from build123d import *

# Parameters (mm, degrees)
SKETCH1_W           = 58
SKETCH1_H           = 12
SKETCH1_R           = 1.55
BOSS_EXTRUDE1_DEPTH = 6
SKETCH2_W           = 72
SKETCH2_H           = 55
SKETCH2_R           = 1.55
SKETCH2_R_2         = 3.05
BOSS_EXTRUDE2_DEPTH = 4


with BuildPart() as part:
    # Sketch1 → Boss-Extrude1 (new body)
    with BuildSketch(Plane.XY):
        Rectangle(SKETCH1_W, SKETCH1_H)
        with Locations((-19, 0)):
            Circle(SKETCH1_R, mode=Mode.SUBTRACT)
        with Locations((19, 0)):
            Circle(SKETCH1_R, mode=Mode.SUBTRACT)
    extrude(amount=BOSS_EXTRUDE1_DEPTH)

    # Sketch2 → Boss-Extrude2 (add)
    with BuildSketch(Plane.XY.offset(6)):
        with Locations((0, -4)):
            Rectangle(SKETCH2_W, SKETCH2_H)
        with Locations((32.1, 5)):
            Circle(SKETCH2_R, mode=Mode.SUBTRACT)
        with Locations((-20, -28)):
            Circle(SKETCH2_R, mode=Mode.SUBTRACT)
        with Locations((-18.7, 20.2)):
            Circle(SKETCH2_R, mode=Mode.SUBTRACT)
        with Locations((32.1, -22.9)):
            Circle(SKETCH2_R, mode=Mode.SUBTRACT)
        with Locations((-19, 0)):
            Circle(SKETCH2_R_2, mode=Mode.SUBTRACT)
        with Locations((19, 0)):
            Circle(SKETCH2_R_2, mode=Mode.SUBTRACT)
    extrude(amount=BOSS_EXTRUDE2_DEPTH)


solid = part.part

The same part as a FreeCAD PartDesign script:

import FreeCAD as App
import Part
import Sketcher

V = App.Vector
Q = App.Units.Quantity

doc = App.newDocument("Part")
params = doc.addObject("Spreadsheet::Sheet", "Params")
for row, (alias, value) in enumerate([
    ("sketch1_diameter", "3.1 mm"),
    ("sketch1_width", "58 mm"),
    ("sketch1_height", "12 mm"),
    ("pad1_length", "6 mm"),
    ("sketch2_diameter", "3.1 mm"),
    ("sketch2_diameter2", "6.1 mm"),
    ("sketch2_width", "72 mm"),
    ("sketch2_height", "55 mm"),
    ("pad2_length", "4 mm"),
], start=1):
    params.set(f"A{row}", alias)
    params.set(f"B{row}", "=" + value)
    params.setAlias(f"B{row}", alias)

body = doc.addObject("PartDesign::Body", "Body")

sketch1 = body.newObject("Sketcher::SketchObject", "Sketch")
sketch1.AttachmentSupport = (doc.getObject("XY_Plane"), [""])
sketch1.MapMode = "FlatFace"
sketch1.addGeometry(Part.LineSegment(V(-29, 6, 0), V(-29, -6, 0)), False)
sketch1.addGeometry(Part.LineSegment(V(-29, -6, 0), V(29, -6, 0)), False)
sketch1.addGeometry(Part.LineSegment(V(29, -6, 0), V(29, 6, 0)), False)
sketch1.addGeometry(Part.LineSegment(V(29, 6, 0), V(-29, 6, 0)), False)
sketch1.addGeometry(Part.Circle(V(-19, 0, 0), V(0, 0, 1), 1.55), False)
sketch1.addGeometry(Part.Circle(V(19, 0, 0), V(0, 0, 1), 1.55), False)
sketch1.addConstraint(Sketcher.Constraint("Coincident", 0, 2, 1, 1))
sketch1.addConstraint(Sketcher.Constraint("Coincident", 1, 2, 2, 1))
sketch1.addConstraint(Sketcher.Constraint("Coincident", 2, 2, 3, 1))
sketch1.addConstraint(Sketcher.Constraint("Coincident", 3, 2, 0, 1))
sketch1.addConstraint(Sketcher.Constraint("Vertical", 0))
sketch1.addConstraint(Sketcher.Constraint("Horizontal", 1))
sketch1.addConstraint(Sketcher.Constraint("Vertical", 2))
sketch1.addConstraint(Sketcher.Constraint("Horizontal", 3))
sketch1.addConstraint(Sketcher.Constraint("Equal", 4, 5))
sketch1.addConstraint(Sketcher.Constraint("Symmetric", 4, 3, 5, 3, -1, 1))
sketch1.addConstraint(Sketcher.Constraint("Symmetric", 0, 2, 2, 2, -1, 1))
sketch1.addConstraint(Sketcher.Constraint("PointOnObject", 4, 3, -1))
sketch1.addConstraint(Sketcher.Constraint("Diameter", 4, Q("3.1 mm")))
sketch1.addConstraint(Sketcher.Constraint("DistanceX", 1, 1, 1, 2, Q("58 mm")))
sketch1.addConstraint(Sketcher.Constraint("DistanceY", 0, 2, 0, 1, Q("12 mm")))
sketch1.addConstraint(Sketcher.Constraint("DistanceX", 4, 3, -1, 1, Q("19 mm")))
sketch1.setExpression("Constraints[12]", "Params.sketch1_diameter")
sketch1.setExpression("Constraints[13]", "Params.sketch1_width")
sketch1.setExpression("Constraints[14]", "Params.sketch1_height")
pad1 = body.newObject("PartDesign::Pad", "Pad")
pad1.Profile = sketch1
pad1.setExpression("Length", "Params.pad1_length")

sketch2 = body.newObject("Sketcher::SketchObject", "Sketch001")
sketch2.AttachmentSupport = (doc.getObject("XY_Plane"), [""])
sketch2.MapMode = "FlatFace"
sketch2.AttachmentOffset = App.Placement(V(0, 0, 6), App.Rotation())
sketch2.addGeometry(Part.LineSegment(V(-36, 23.5, 0), V(-36, -31.5, 0)), False)
sketch2.addGeometry(Part.LineSegment(V(-36, -31.5, 0), V(36, -31.5, 0)), False)
sketch2.addGeometry(Part.LineSegment(V(36, -31.5, 0), V(36, 23.5, 0)), False)
sketch2.addGeometry(Part.LineSegment(V(36, 23.5, 0), V(-36, 23.5, 0)), False)
sketch2.addGeometry(Part.Circle(V(-20, -28, 0), V(0, 0, 1), 1.55), False)
sketch2.addGeometry(Part.Circle(V(32.1, -22.9, 0), V(0, 0, 1), 1.55), False)
sketch2.addGeometry(Part.Circle(V(-19, 0, 0), V(0, 0, 1), 3.05), False)
sketch2.addGeometry(Part.Circle(V(-18.7, 20.2, 0), V(0, 0, 1), 1.55), False)
sketch2.addGeometry(Part.Circle(V(19, 0, 0), V(0, 0, 1), 3.05), False)
sketch2.addGeometry(Part.Circle(V(32.1, 5, 0), V(0, 0, 1), 1.55), False)
sketch2.addConstraint(Sketcher.Constraint("Coincident", 0, 2, 1, 1))
sketch2.addConstraint(Sketcher.Constraint("Coincident", 1, 2, 2, 1))
sketch2.addConstraint(Sketcher.Constraint("Coincident", 2, 2, 3, 1))
sketch2.addConstraint(Sketcher.Constraint("Coincident", 3, 2, 0, 1))
sketch2.addConstraint(Sketcher.Constraint("Vertical", 0))
sketch2.addConstraint(Sketcher.Constraint("Horizontal", 1))
sketch2.addConstraint(Sketcher.Constraint("Vertical", 2))
sketch2.addConstraint(Sketcher.Constraint("Horizontal", 3))
sketch2.addConstraint(Sketcher.Constraint("Equal", 4, 5))
sketch2.addConstraint(Sketcher.Constraint("Equal", 5, 7))
sketch2.addConstraint(Sketcher.Constraint("Equal", 6, 8))
sketch2.addConstraint(Sketcher.Constraint("Equal", 7, 9))
sketch2.addConstraint(Sketcher.Constraint("Symmetric", 6, 3, 8, 3, -1, 1))
sketch2.addConstraint(Sketcher.Constraint("PointOnObject", 6, 3, -1))
sketch2.addConstraint(Sketcher.Constraint("Vertical", 5, 3, 9, 3))
sketch2.addConstraint(Sketcher.Constraint("Diameter", 4, Q("3.1 mm")))
sketch2.addConstraint(Sketcher.Constraint("Diameter", 6, Q("6.1 mm")))
sketch2.addConstraint(Sketcher.Constraint("DistanceX", 1, 1, 1, 2, Q("72 mm")))
sketch2.addConstraint(Sketcher.Constraint("DistanceY", 0, 2, 0, 1, Q("55 mm")))
sketch2.addConstraint(Sketcher.Constraint("DistanceX", 4, 3, -1, 1, Q("20 mm")))
sketch2.addConstraint(Sketcher.Constraint("DistanceY", 4, 3, -1, 1, Q("28 mm")))
sketch2.addConstraint(Sketcher.Constraint("DistanceX", 6, 3, -1, 1, Q("19 mm")))
sketch2.addConstraint(Sketcher.Constraint("DistanceY", -1, 1, 9, 3, Q("5 mm")))
sketch2.addConstraint(Sketcher.Constraint("DistanceX", 0, 2, -1, 1, Q("36 mm")))
sketch2.addConstraint(Sketcher.Constraint("DistanceX", -1, 1, 5, 3, Q("32.1 mm")))
sketch2.addConstraint(Sketcher.Constraint("DistanceY", 5, 3, -1, 1, Q("22.9 mm")))
sketch2.addConstraint(Sketcher.Constraint("DistanceX", 7, 3, -1, 1, Q("18.7 mm")))
sketch2.addConstraint(Sketcher.Constraint("DistanceY", -1, 1, 7, 3, Q("20.2 mm")))
sketch2.addConstraint(Sketcher.Constraint("DistanceY", 0, 2, -1, 1, Q("31.5 mm")))
sketch2.setExpression("Constraints[15]", "Params.sketch2_diameter")
sketch2.setExpression("Constraints[16]", "Params.sketch2_diameter2")
sketch2.setExpression("Constraints[17]", "Params.sketch2_width")
sketch2.setExpression("Constraints[18]", "Params.sketch2_height")
pad2 = body.newObject("PartDesign::Pad", "Pad001")
pad2.Profile = sketch2
pad2.setExpression("Length", "Params.pad2_length")

doc.recompute()
